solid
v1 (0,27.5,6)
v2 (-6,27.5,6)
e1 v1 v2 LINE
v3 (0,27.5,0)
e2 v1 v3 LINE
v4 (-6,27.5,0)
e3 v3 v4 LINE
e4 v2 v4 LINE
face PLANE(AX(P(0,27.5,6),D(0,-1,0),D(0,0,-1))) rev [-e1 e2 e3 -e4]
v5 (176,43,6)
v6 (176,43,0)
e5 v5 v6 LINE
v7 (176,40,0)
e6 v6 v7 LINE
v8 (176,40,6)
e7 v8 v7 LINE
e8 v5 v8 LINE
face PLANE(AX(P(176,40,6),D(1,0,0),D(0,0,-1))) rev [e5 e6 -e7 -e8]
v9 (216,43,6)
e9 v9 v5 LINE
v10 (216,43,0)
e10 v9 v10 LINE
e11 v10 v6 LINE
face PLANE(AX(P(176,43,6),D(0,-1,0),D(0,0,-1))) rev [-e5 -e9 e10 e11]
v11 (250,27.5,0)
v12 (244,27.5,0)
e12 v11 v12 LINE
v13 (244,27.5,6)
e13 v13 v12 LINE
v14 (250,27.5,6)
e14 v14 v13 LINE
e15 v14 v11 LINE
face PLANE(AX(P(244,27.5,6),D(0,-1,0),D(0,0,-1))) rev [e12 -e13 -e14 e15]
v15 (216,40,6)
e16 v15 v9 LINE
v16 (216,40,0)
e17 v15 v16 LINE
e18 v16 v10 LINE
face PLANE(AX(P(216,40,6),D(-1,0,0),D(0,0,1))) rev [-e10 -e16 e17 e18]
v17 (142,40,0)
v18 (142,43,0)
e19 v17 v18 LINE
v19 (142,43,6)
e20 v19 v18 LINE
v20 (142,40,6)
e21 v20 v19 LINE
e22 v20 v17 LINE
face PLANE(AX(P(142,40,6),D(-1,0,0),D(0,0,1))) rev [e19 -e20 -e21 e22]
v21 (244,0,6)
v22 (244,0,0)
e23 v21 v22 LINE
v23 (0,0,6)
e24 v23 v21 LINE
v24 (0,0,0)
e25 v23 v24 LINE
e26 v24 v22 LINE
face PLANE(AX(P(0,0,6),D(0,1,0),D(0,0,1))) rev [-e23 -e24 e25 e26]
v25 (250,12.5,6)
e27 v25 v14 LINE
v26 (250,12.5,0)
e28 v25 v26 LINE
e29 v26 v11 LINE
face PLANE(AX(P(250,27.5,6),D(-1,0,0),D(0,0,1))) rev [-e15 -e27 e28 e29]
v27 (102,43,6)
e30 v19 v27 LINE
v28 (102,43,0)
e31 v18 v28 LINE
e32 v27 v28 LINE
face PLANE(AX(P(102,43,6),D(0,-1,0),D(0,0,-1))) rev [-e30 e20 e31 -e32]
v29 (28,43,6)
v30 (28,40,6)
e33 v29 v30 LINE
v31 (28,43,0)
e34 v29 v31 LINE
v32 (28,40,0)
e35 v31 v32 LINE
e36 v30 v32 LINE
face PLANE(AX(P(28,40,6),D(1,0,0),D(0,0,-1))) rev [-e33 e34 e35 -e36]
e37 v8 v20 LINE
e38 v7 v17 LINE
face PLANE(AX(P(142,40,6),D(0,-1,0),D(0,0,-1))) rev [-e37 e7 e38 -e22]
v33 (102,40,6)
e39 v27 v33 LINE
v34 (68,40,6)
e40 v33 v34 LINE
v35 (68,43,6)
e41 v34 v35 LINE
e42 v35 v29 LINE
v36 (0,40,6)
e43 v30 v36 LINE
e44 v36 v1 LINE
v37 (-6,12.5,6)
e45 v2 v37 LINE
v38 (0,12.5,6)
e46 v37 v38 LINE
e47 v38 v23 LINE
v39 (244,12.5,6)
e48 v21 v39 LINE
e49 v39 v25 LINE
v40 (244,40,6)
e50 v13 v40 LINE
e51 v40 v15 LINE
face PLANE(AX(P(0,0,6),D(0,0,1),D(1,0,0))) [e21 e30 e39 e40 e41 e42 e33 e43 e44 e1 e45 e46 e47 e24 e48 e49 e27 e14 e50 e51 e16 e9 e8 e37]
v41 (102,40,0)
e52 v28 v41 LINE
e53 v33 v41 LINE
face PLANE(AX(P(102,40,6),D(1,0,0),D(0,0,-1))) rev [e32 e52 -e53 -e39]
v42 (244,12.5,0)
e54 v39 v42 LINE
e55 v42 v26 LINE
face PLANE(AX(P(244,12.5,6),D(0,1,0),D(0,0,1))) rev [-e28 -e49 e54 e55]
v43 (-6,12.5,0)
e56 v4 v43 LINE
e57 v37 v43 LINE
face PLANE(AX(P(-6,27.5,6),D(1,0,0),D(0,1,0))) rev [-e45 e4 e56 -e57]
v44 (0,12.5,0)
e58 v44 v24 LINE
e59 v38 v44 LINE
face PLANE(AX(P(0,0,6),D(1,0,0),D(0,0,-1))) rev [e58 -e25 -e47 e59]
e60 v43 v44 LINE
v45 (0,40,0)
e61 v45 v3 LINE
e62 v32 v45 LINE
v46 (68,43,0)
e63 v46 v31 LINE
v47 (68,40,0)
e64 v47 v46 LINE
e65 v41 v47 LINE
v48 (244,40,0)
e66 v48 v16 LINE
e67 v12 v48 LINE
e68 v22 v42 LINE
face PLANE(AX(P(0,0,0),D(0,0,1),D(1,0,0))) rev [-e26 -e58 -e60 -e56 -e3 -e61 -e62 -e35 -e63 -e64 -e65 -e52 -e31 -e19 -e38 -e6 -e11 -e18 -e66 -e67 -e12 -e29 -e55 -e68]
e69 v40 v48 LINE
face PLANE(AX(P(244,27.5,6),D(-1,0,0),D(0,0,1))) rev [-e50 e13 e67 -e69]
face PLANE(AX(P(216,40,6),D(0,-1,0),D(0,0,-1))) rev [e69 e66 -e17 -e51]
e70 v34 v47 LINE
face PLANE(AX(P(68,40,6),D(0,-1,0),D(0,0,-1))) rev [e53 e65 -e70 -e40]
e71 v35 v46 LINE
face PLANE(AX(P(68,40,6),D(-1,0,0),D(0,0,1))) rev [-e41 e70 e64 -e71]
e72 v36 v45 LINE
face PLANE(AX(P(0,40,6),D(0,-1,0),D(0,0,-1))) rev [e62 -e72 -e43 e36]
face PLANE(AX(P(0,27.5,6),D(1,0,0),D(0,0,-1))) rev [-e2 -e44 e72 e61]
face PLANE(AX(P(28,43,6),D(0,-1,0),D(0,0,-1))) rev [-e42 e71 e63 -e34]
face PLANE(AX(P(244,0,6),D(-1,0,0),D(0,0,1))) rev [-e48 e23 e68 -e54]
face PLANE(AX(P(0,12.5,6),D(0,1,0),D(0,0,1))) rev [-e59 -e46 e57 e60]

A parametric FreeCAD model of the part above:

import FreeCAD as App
import Part
import Sketcher

V = App.Vector

doc = App.newDocument("Part")
body = doc.addObject("PartDesign::Body", "Body")

# Sketch on XY plane
sketch1 = doc.addObject("Sketcher::SketchObject", "Sketch")
body.addObject(sketch1)
sketch1.AttachmentSupport = (doc.XY_Plane, [""])
sketch1.MapMode = "FlatFace"
sketch1.addGeometry(Part.LineSegment(V(102, 40, 0), V(68, 40, 0)), False)
sketch1.addGeometry(Part.LineSegment(V(68, 40, 0), V(68, 43, 0)), False)
sketch1.addGeometry(Part.LineSegment(V(68, 43, 0), V(28, 43, 0)), False)
sketch1.addGeometry(Part.LineSegment(V(28, 43, 0), V(28, 40, 0)), False)
sketch1.addGeometry(Part.LineSegment(V(28, 40, 0), V(0, 40, 0)), False)
sketch1.addGeometry(Part.LineSegment(V(0, 40, 0), V(0, 27.5, 0)), False)
sketch1.addGeometry(Part.LineSegment(V(0, 27.5, 0), V(-6, 27.5, 0)), False)
sketch1.addGeometry(Part.LineSegment(V(-6, 27.5, 0), V(-6, 12.5, 0)), False)
sketch1.addGeometry(Part.LineSegment(V(-6, 12.5, 0), V(0, 12.5, 0)), False)
sketch1.addGeometry(Part.LineSegment(V(0, 12.5, 0), V(0, 0, 0)), False)
sketch1.addGeometry(Part.LineSegment(V(0, 0, 0), V(244, 0, 0)), False)
sketch1.addGeometry(Part.LineSegment(V(244, 0, 0), V(244, 12.5, 0)), False)
sketch1.addGeometry(Part.LineSegment(V(244, 12.5, 0), V(250, 12.5, 0)), False)
sketch1.addGeometry(Part.LineSegment(V(250, 12.5, 0), V(250, 27.5, 0)), False)
sketch1.addGeometry(Part.LineSegment(V(250, 27.5, 0), V(244, 27.5, 0)), False)
sketch1.addGeometry(Part.LineSegment(V(244, 27.5, 0), V(244, 40, 0)), False)
sketch1.addGeometry(Part.LineSegment(V(244, 40, 0), V(216, 40, 0)), False)
sketch1.addGeometry(Part.LineSegment(V(216, 40, 0), V(216, 43, 0)), False)
sketch1.addGeometry(Part.LineSegment(V(216, 43, 0), V(176, 43, 0)), False)
sketch1.addGeometry(Part.LineSegment(V(176, 43, 0), V(176, 40, 0)), False)
sketch1.addGeometry(Part.LineSegment(V(176, 40, 0), V(142, 40, 0)), False)
sketch1.addGeometry(Part.LineSegment(V(142, 40, 0), V(142, 43, 0)), False)
sketch1.addGeometry(Part.LineSegment(V(142, 43, 0), V(102, 43, 0)), False)
sketch1.addGeometry(Part.LineSegment(V(102, 43, 0), V(102, 40, 0)), False)
sketch1.addConstraint(Sketcher.Constraint("Coincident", 0, 2, 1, 1))
sketch1.addConstraint(Sketcher.Constraint("Coincident", 1, 2, 2, 1))
sketch1.addConstraint(Sketcher.Constraint("Coincident", 2, 2, 3, 1))
sketch1.addConstraint(Sketcher.Constraint("Coincident", 3, 2, 4, 1))
sketch1.addConstraint(Sketcher.Constraint("Coincident", 4, 2, 5, 1))
sketch1.addConstraint(Sketcher.Constraint("Coincident", 5, 2, 6, 1))
sketch1.addConstraint(Sketcher.Constraint("Coincident", 6, 2, 7, 1))
sketch1.addConstraint(Sketcher.Constraint("Coincident", 7, 2, 8, 1))
sketch1.addConstraint(Sketcher.Constraint("Coincident", 8, 2, 9, 1))
sketch1.addConstraint(Sketcher.Constraint("Coincident", 9, 2, 10, 1))
sketch1.addConstraint(Sketcher.Constraint("Coincident", 10, 2, 11, 1))
sketch1.addConstraint(Sketcher.Constraint("Coincident", 11, 2, 12, 1))
sketch1.addConstraint(Sketcher.Constraint("Coincident", 12, 2, 13, 1))
sketch1.addConstraint(Sketcher.Constraint("Coincident", 13, 2, 14, 1))
sketch1.addConstraint(Sketcher.Constraint("Coincident", 14, 2, 15, 1))
sketch1.addConstraint(Sketcher.Constraint("Coincident", 15, 2, 16, 1))
sketch1.addConstraint(Sketcher.Constraint("Coincident", 16, 2, 17, 1))
sketch1.addConstraint(Sketcher.Constraint("Coincident", 17, 2, 18, 1))
sketch1.addConstraint(Sketcher.Constraint("Coincident", 18, 2, 19, 1))
sketch1.addConstraint(Sketcher.Constraint("Coincident", 19, 2, 20, 1))
sketch1.addConstraint(Sketcher.Constraint("Coincident", 20, 2, 21, 1))
sketch1.addConstraint(Sketcher.Constraint("Coincident", 21, 2, 22, 1))
sketch1.addConstraint(Sketcher.Constraint("Coincident", 22, 2, 23, 1))
sketch1.addConstraint(Sketcher.Constraint("Coincident", 23, 2, 0, 1))
sketch1.addConstraint(Sketcher.Constraint("Horizontal", 0))
sketch1.addConstraint(Sketcher.Constraint("Vertical", 1))
sketch1.addConstraint(Sketcher.Constraint("Horizontal", 2))
sketch1.addConstraint(Sketcher.Constraint("Vertical", 3))
sketch1.addConstraint(Sketcher.Constraint("Horizontal", 4))
sketch1.addConstraint(Sketcher.Constraint("Vertical", 5))
sketch1.addConstraint(Sketcher.Constraint("Horizontal", 6))
sketch1.addConstraint(Sketcher.Constraint("Vertical", 7))
sketch1.addConstraint(Sketcher.Constraint("Horizontal", 8))
sketch1.addConstraint(Sketcher.Constraint("Vertical", 9))
sketch1.addConstraint(Sketcher.Constraint("Horizontal", 10))
sketch1.addConstraint(Sketcher.Constraint("Vertical", 11))
sketch1.addConstraint(Sketcher.Constraint("Horizontal", 12))
sketch1.addConstraint(Sketcher.Constraint("Vertical", 13))
sketch1.addConstraint(Sketcher.Constraint("Horizontal", 14))
sketch1.addConstraint(Sketcher.Constraint("Vertical", 15))
sketch1.addConstraint(Sketcher.Constraint("Horizontal", 16))
sketch1.addConstraint(Sketcher.Constraint("Vertical", 17))
sketch1.addConstraint(Sketcher.Constraint("Horizontal", 18))
sketch1.addConstraint(Sketcher.Constraint("Vertical", 19))
sketch1.addConstraint(Sketcher.Constraint("Horizontal", 20))
sketch1.addConstraint(Sketcher.Constraint("Vertical", 21))
sketch1.addConstraint(Sketcher.Constraint("Horizontal", 22))
sketch1.addConstraint(Sketcher.Constraint("Vertical", 23))
sketch1.addConstraint(Sketcher.Constraint("Coincident", 9, 2, -1, 1))
sketch1.addConstraint(Sketcher.Constraint("PointOnObject", 4, 2, -2))
sketch1.addConstraint(Sketcher.Constraint("Horizontal", 0, 2, 3, 2))
sketch1.addConstraint(Sketcher.Constraint("Horizontal", 8, 2, 11, 2))
sketch1.addConstraint(Sketcher.Constraint("Horizontal", 6, 2, 13, 2))
sketch1.addConstraint(Sketcher.Constraint("Horizontal", 4, 2, 15, 2))
sketch1.addConstraint(Sketcher.Constraint("Horizontal", 2, 2, 17, 2))
sketch1.addConstraint(Sketcher.Constraint("Horizontal", 16, 2, 19, 2))
sketch1.addConstraint(Sketcher.Constraint("Horizontal", 18, 2, 21, 2))
sketch1.addConstraint(Sketcher.Constraint("Vertical", 11, 2, 14, 2))
sketch1.addConstraint(Sketcher.Constraint("Equal", 8, 12))
sketch1.addConstraint(Sketcher.Constraint("Equal", 4, 16))
sketch1.addConstraint(Sketcher.Constraint("Equal", 2, 18))
sketch1.addConstraint(Sketcher.Constraint("Equal", 0, 20))
sketch1.addConstraint(Sketcher.Constraint("Equal", 18, 22))
sketch1.addConstraint(Sketcher.Constraint("Equal", 5, 9))
sketch1.addConstraint(Sketcher.Constraint("DistanceX", 0, 2, 0, 1, 34.0))
sketch1.addConstraint(Sketcher.Constraint("DistanceX", 2, 2, 2, 1, 40.0))
sketch1.addConstraint(Sketcher.Constraint("DistanceX", 4, 2, 4, 1, 28.0))
sketch1.addConstraint(Sketcher.Constraint("DistanceX", 6, 2, 6, 1, 6.0))
sketch1.addConstraint(Sketcher.Constraint("DistanceY", 1, 1, 1, 2, 3.0))
sketch1.addConstraint(Sketcher.Constraint("DistanceY", 7, 2, 7, 1, 15.0))
sketch1.addConstraint(Sketcher.Constraint("DistanceY", 5, 2, 5, 1, 12.5))
pad1 = doc.addObject("PartDesign::Pad", "Pad")
body.addObject(pad1)
pad1.Profile = sketch1
pad1.Length = 6

doc.recompute()
